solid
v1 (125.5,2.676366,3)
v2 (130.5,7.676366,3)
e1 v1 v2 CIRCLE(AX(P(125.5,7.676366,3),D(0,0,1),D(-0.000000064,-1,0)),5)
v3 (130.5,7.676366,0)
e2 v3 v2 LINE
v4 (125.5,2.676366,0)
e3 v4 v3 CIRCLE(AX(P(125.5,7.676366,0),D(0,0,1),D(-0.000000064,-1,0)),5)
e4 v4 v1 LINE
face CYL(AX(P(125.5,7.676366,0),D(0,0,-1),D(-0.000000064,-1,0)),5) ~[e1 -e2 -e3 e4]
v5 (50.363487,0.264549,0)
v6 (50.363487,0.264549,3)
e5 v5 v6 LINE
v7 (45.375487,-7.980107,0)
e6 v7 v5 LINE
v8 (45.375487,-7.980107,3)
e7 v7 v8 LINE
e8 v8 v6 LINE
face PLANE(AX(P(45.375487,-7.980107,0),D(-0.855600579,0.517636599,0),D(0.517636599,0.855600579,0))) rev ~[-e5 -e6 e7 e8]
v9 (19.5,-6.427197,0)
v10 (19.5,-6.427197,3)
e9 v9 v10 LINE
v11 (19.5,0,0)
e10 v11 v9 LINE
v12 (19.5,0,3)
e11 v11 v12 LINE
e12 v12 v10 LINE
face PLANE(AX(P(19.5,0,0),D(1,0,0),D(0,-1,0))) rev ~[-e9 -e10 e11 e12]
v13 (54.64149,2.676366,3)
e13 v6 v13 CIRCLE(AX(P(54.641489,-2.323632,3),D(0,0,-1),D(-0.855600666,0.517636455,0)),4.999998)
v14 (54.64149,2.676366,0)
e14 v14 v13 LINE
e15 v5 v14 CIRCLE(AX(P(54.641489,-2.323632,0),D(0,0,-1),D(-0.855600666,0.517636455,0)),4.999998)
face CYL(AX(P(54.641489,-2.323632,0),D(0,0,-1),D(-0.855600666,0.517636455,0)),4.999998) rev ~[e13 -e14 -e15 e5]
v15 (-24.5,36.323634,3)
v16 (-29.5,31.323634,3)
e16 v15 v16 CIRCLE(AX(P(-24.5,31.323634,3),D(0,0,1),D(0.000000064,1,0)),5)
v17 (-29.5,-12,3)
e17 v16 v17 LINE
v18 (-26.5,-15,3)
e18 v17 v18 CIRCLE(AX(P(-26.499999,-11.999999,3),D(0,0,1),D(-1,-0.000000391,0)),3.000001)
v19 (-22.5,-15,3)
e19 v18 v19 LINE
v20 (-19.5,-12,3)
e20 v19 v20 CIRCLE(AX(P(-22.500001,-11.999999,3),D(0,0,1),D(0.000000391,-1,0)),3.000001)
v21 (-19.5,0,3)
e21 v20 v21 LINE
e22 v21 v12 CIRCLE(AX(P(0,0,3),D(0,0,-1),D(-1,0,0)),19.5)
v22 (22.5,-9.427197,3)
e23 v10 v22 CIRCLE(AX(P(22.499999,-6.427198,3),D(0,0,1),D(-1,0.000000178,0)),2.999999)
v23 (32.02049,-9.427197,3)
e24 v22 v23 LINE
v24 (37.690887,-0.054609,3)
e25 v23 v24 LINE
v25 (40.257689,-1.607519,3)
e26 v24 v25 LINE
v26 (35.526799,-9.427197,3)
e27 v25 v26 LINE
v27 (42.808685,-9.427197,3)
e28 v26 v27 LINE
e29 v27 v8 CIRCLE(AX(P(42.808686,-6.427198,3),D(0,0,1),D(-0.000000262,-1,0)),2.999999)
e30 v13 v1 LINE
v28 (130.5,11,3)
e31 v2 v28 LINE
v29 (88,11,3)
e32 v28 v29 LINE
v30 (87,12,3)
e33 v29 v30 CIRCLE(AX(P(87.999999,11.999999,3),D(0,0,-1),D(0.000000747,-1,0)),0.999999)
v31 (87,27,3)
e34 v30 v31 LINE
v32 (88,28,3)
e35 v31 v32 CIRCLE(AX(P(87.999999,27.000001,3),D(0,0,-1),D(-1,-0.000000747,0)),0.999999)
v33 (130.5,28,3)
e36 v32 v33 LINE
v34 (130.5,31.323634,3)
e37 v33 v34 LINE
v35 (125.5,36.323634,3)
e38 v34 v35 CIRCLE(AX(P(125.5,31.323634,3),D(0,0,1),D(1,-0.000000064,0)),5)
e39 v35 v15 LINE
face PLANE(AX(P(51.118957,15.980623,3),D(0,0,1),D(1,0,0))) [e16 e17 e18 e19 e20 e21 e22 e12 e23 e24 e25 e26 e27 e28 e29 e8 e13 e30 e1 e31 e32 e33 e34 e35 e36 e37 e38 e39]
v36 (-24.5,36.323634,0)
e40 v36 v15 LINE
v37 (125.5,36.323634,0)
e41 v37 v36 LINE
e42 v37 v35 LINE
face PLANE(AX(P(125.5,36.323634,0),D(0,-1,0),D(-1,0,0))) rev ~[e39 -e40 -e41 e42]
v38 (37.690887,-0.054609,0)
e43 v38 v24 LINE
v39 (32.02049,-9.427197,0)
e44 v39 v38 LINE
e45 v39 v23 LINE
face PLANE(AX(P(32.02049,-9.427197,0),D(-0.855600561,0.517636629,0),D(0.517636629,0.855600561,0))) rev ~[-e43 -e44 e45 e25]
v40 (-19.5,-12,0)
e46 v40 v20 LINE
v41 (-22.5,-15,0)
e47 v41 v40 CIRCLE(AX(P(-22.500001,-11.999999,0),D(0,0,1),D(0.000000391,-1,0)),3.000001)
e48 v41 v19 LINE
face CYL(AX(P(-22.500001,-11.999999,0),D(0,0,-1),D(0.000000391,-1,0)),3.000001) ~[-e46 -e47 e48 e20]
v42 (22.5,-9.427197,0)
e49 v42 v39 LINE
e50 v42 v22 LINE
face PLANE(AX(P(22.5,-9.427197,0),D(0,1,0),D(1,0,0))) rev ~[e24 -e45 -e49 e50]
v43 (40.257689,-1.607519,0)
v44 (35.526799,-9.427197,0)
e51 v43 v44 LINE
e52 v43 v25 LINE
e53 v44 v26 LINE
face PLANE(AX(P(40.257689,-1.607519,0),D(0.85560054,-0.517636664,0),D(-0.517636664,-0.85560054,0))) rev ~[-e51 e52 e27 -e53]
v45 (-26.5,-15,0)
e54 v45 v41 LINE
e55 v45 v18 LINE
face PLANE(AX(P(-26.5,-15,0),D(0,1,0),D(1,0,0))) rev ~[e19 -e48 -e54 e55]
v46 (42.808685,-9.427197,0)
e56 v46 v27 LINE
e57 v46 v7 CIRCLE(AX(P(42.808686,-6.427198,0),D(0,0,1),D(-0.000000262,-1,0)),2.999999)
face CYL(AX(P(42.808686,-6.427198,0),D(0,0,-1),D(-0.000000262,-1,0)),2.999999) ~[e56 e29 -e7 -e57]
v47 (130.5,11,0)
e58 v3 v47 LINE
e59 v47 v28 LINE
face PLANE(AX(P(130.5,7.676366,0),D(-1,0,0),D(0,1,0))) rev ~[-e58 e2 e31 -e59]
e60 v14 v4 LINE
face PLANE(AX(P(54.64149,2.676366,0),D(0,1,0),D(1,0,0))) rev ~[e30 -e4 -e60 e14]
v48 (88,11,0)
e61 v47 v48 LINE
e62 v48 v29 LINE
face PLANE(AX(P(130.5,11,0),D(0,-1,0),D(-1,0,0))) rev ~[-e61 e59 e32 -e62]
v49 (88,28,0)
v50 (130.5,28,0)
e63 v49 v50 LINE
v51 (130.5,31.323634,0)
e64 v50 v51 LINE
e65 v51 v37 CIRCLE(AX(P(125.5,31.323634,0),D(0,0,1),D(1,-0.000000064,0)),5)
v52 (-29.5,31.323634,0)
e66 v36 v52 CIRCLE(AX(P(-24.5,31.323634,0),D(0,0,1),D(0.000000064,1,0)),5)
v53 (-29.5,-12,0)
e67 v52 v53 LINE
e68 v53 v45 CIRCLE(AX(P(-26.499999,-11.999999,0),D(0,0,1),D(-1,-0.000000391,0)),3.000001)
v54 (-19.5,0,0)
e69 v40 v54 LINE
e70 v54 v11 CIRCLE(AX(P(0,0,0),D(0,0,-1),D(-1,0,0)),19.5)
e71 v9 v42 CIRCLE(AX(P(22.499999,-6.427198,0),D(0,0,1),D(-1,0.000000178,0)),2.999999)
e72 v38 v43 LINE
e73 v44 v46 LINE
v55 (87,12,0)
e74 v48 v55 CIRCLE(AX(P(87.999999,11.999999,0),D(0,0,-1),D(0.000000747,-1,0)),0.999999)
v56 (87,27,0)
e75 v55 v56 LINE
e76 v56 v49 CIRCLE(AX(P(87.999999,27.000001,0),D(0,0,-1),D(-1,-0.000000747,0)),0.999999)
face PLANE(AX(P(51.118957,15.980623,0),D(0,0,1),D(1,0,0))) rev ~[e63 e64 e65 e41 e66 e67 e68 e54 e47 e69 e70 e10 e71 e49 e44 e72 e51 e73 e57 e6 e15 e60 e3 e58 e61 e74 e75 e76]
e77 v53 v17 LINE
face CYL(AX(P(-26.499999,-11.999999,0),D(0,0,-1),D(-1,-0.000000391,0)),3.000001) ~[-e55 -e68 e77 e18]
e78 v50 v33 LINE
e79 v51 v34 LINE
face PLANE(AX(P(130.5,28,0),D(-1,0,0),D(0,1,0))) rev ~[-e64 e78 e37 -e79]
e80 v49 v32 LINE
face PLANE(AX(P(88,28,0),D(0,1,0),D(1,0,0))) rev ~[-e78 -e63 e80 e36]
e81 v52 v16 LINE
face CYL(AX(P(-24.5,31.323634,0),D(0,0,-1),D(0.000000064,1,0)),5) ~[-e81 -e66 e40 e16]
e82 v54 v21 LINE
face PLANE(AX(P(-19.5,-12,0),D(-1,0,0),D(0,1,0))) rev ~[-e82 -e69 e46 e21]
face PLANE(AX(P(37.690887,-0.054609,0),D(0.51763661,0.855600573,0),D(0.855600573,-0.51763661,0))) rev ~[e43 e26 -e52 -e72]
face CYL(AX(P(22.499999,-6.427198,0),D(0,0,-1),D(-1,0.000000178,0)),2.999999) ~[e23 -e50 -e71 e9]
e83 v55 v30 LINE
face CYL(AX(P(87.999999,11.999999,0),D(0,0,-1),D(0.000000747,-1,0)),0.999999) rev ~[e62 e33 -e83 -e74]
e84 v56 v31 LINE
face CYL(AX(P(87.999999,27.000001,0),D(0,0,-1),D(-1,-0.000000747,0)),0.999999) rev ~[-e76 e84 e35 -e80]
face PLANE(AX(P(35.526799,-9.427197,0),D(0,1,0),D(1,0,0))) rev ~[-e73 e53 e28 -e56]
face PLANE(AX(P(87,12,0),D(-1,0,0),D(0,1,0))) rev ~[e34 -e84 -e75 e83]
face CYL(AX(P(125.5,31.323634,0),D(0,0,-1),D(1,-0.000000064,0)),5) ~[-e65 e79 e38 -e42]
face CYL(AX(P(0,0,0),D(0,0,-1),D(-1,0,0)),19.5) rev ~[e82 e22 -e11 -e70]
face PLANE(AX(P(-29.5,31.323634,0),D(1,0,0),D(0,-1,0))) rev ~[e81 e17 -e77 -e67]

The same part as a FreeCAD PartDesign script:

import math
import FreeCAD as App
import Part
import Sketcher

V = App.Vector

doc = App.newDocument("Part")
body = doc.addObject("PartDesign::Body", "Body")

# Sketch on XY plane
sketch1 = body.newObject("Sketcher::SketchObject", "Sketch")
sketch1.AttachmentSupport = (doc.getObject("XY_Plane"), [""])
sketch1.MapMode = "FlatFace"
sketch1.addGeometry([
    Part.ArcOfCircle(Part.Circle(V(0, 0, 0), V(0, 0, 1), 19.5), math.radians(0), math.radians(180)),  # 0
    Part.LineSegment(V(19.5, 0, 0), V(19.5, -6.4, 0)),  # 1
    Part.ArcOfCircle(Part.Circle(V(22.5, -6.4, 0), V(0, 0, 1), 3), math.radians(180), math.radians(270)),  # 2
    Part.LineSegment(V(22.5, -9.4, 0), V(32, -9.4, 0)),  # 3
    Part.LineSegment(V(32, -9.4, 0), V(37.7, -0.1, 0)),  # 4
    Part.LineSegment(V(37.7, -0.1, 0), V(40.3, -1.6, 0)),  # 5
    Part.LineSegment(V(40.3, -1.6, 0), V(35.5, -9.4, 0)),  # 6
    Part.LineSegment(V(35.5, -9.4, 0), V(42.8, -9.4, 0)),  # 7
    Part.ArcOfCircle(Part.Circle(V(42.8, -6.4, 0), V(0, 0, 1), 3), math.radians(-90), math.radians(-31)),  # 8
    Part.LineSegment(V(45.4, -8, 0), V(50.4, 0.3, 0)),  # 9
    Part.ArcOfCircle(Part.Circle(V(54.6, -2.3, 0), V(0, 0, 1), 5), math.radians(90), math.radians(149)),  # 10
    Part.LineSegment(V(54.6, 2.7, 0), V(125.5, 2.7, 0)),  # 11
    Part.ArcOfCircle(Part.Circle(V(125.5, 7.7, 0), V(0, 0, 1), 5), math.radians(-90), math.radians(0)),  # 12
    Part.LineSegment(V(130.5, 7.7, 0), V(130.5, 11, 0)),  # 13
    Part.LineSegment(V(130.5, 11, 0), V(88, 11, 0)),  # 14
    Part.ArcOfCircle(Part.Circle(V(88, 12, 0), V(0, 0, 1), 1), math.radians(180), math.radians(270)),  # 15
    Part.LineSegment(V(87, 12, 0), V(87, 27, 0)),  # 16
    Part.ArcOfCircle(Part.Circle(V(88, 27, 0), V(0, 0, 1), 1), math.radians(90), math.radians(180)),  # 17
    Part.LineSegment(V(88, 28, 0), V(130.5, 28, 0)),  # 18
    Part.LineSegment(V(130.5, 28, 0), V(130.5, 31.3, 0)),  # 19
    Part.ArcOfCircle(Part.Circle(V(125.5, 31.3, 0), V(0, 0, 1), 5), math.radians(0), math.radians(90)),  # 20
    Part.LineSegment(V(125.5, 36.3, 0), V(-24.5, 36.3, 0)),  # 21
    Part.ArcOfCircle(Part.Circle(V(-24.5, 31.3, 0), V(0, 0, 1), 5), math.radians(90), math.radians(180)),  # 22
    Part.LineSegment(V(-29.5, 31.3, 0), V(-29.5, -12, 0)),  # 23
    Part.ArcOfCircle(Part.Circle(V(-26.5, -12, 0), V(0, 0, 1), 3), math.radians(-180), math.radians(-90)),  # 24
    Part.LineSegment(V(-26.5, -15, 0), V(-22.5, -15, 0)),  # 25
    Part.ArcOfCircle(Part.Circle(V(-22.5, -12, 0), V(0, 0, 1), 3), math.radians(-90), math.radians(0)),  # 26
    Part.LineSegment(V(-19.5, -12, 0), V(-19.5, 0, 0)),  # 27
], False)
sketch1.addConstraint([
    Sketcher.Constraint("Tangent", 0, 1, 1, 1),
    Sketcher.Constraint("Tangent", 1, 2, 2, 1),
    Sketcher.Constraint("Tangent", 2, 2, 3, 1),
    Sketcher.Constraint("Coincident", 3, 2, 4, 1),
    Sketcher.Constraint("Coincident", 4, 2, 5, 1),
    Sketcher.Constraint("Coincident", 5, 2, 6, 1),
    Sketcher.Constraint("Coincident", 6, 2, 7, 1),
    Sketcher.Constraint("Tangent", 7, 2, 8, 1),
    Sketcher.Constraint("Tangent", 8, 2, 9, 1),
    Sketcher.Constraint("Tangent", 9, 2, 10, 2),
    Sketcher.Constraint("Tangent", 10, 1, 11, 1),
    Sketcher.Constraint("Tangent", 11, 2, 12, 1),
    Sketcher.Constraint("Tangent", 12, 2, 13, 1),
    Sketcher.Constraint("Coincident", 13, 2, 14, 1),
    Sketcher.Constraint("Tangent", 14, 2, 15, 2),
    Sketcher.Constraint("Tangent", 15, 1, 16, 1),
    Sketcher.Constraint("Tangent", 16, 2, 17, 2),
    Sketcher.Constraint("Tangent", 17, 1, 18, 1),
    Sketcher.Constraint("Coincident", 18, 2, 19, 1),
    Sketcher.Constraint("Tangent", 19, 2, 20, 1),
    Sketcher.Constraint("Tangent", 20, 2, 21, 1),
    Sketcher.Constraint("Tangent", 21, 2, 22, 1),
    Sketcher.Constraint("Tangent", 22, 2, 23, 1),
    Sketcher.Constraint("Tangent", 23, 2, 24, 1),
    Sketcher.Constraint("Tangent", 24, 2, 25, 1),
    Sketcher.Constraint("Tangent", 25, 2, 26, 1),
    Sketcher.Constraint("Tangent", 26, 2, 27, 1),
    Sketcher.Constraint("Tangent", 27, 2, 0, 2),
    Sketcher.Constraint("Vertical", 1),
    Sketcher.Constraint("Horizontal", 3),
    Sketcher.Constraint("Horizontal", 7),
    Sketcher.Constraint("Horizontal", 11),
    Sketcher.Constraint("Vertical", 13),
    Sketcher.Constraint("Horizontal", 14),
    Sketcher.Constraint("Vertical", 16),
    Sketcher.Constraint("Horizontal", 18),
    Sketcher.Constraint("Vertical", 19),
    Sketcher.Constraint("Horizontal", 21),
    Sketcher.Constraint("Vertical", 23),
    Sketcher.Constraint("Horizontal", 25),
    Sketcher.Constraint("Vertical", 27),
    Sketcher.Constraint("Coincident", 0, 3, -1, 1),
    Sketcher.Constraint("Equal", 2, 8),
    Sketcher.Constraint("Equal", 10, 12),
    Sketcher.Constraint("Equal", 15, 17),
    Sketcher.Constraint("Equal", 12, 20),
    Sketcher.Constraint("Equal", 20, 22),
    Sketcher.Constraint("Equal", 8, 24),
    Sketcher.Constraint("Equal", 24, 26),
    Sketcher.Constraint("Perpendicular", 4, 5),
    Sketcher.Constraint("Perpendicular", 5, 6),
    Sketcher.Constraint("Parallel", 6, 9),
    Sketcher.Constraint("Horizontal", 2, 3, 8, 3),
    Sketcher.Constraint("Vertical", 12, 3, 20, 3),
    Sketcher.Constraint("Equal", 13, 19),
    Sketcher.Constraint("Radius", 2, 2.999999),
    Sketcher.Constraint("Radius", 10, 4.999999),
    Sketcher.Constraint("Radius", 15, 0.999999),
    Sketcher.Constraint("Radius", 0, 19.5),
    Sketcher.Constraint("DistanceX", 21, 2, 21, 1, 150.0),
    Sketcher.Constraint("DistanceX", 25, 1, 25, 2, 4.0),
    Sketcher.Constraint("DistanceY", 16, 1, 16, 2, 15.0),
    Sketcher.Constraint("DistanceY", 27, 1, 27, 2, 12.0),
    Sketcher.Constraint("Distance", 5, 3.0),
    Sketcher.Constraint("DistanceX", 14, 2, 14, 1, 42.5),
    Sketcher.Constraint("DistanceY", -1, 1, 15, 3, 11.999999),
    Sketcher.Constraint("DistanceX", 8, 2, 9, 2, 4.988),
    Sketcher.Constraint("DistanceX", 3, 1, 3, 2, 9.52049),
    Sketcher.Constraint("DistanceX", 11, 1, 11, 2, 70.85851),
    Sketcher.Constraint("DistanceX", -1, 1, 6, 2, 35.526799),
    Sketcher.Constraint("DistanceY", 8, 3, 17, 3, 33.427198),
    Sketcher.Constraint("DistanceX", 4, 2, 8, 3, 5.117799),
])
pad1 = body.newObject("PartDesign::Pad", "Pad")
pad1.Profile = sketch1
pad1.Length = 3

doc.recompute()
